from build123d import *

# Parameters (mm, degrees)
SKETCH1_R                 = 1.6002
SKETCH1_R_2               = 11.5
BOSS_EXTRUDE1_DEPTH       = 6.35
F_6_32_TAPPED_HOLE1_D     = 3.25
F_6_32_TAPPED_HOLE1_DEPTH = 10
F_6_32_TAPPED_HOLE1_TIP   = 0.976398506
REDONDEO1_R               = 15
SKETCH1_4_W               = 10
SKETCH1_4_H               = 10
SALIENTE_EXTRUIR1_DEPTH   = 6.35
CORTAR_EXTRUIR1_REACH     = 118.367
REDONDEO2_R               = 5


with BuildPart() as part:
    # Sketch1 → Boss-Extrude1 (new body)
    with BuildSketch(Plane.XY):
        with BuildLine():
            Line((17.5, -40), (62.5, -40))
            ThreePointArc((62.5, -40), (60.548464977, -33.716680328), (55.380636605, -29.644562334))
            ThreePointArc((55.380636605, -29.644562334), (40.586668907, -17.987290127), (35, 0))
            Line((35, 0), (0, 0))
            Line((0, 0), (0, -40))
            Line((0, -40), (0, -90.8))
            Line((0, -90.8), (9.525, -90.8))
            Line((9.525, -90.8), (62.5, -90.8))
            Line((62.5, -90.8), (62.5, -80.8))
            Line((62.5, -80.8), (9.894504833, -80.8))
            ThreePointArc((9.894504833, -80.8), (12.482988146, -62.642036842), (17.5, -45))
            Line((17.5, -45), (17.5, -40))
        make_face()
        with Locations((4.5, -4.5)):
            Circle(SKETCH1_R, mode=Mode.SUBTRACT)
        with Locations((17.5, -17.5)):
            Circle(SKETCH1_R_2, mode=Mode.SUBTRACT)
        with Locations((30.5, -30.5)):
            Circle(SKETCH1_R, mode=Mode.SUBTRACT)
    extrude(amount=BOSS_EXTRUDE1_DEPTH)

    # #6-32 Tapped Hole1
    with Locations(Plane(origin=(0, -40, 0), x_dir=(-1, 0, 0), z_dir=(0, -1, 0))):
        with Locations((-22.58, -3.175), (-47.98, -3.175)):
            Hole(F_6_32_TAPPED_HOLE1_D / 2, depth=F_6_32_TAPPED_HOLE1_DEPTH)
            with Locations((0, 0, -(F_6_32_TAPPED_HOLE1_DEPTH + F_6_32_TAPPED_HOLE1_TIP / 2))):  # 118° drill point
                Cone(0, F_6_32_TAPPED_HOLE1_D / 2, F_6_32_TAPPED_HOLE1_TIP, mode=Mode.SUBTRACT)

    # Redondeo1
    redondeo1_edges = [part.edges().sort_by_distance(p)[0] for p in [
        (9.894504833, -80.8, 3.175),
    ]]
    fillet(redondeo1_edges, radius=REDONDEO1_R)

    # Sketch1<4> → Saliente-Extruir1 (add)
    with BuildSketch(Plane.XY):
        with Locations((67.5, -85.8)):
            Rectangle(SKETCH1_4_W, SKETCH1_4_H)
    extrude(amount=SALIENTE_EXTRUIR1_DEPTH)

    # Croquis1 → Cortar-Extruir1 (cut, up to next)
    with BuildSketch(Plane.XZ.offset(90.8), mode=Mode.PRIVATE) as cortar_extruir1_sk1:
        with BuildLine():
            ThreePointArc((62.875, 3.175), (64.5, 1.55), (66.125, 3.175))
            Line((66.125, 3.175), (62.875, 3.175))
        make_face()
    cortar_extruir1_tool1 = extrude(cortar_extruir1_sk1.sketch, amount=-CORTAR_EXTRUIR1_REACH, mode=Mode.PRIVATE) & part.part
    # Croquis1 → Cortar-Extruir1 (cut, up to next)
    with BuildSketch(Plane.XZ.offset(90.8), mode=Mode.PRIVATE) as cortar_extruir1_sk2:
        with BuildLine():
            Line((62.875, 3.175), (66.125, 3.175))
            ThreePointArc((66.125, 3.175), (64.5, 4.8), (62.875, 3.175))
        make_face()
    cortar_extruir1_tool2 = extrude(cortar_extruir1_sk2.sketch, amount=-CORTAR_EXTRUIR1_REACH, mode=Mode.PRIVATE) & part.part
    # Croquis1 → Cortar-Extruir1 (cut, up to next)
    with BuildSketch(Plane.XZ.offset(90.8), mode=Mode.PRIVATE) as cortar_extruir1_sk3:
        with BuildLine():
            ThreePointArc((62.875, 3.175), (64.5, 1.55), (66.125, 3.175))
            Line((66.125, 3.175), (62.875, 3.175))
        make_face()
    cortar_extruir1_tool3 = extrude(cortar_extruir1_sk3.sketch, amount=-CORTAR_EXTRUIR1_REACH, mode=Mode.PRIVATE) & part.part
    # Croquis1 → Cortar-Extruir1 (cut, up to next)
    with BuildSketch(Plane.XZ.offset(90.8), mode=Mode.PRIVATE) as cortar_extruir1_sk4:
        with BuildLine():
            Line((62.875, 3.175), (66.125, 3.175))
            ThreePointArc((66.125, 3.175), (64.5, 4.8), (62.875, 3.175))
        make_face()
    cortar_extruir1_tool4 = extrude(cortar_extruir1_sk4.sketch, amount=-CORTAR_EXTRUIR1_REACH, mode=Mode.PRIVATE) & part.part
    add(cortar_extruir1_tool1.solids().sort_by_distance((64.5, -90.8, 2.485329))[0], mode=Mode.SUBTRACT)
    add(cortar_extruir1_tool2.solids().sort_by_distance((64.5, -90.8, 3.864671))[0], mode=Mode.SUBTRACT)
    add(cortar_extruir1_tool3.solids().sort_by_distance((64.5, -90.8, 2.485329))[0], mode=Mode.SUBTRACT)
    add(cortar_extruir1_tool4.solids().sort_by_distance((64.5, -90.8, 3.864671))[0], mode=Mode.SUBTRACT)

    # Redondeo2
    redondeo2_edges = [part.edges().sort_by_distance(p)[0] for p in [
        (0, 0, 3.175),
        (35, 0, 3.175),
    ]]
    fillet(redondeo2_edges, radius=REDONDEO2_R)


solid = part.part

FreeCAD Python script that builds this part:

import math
import FreeCAD as App
import Part
import Sketcher


def edges_at(feature, points):
    """Names of the edges that pass closest to the given points."""
    edges = feature.Shape.Edges
    near = lambda p: min(range(len(edges)), key=lambda i: edges[i].distToShape(Part.Vertex(*p))[0])
    return sorted({f"Edge{near(p) + 1}" for p in points})


def add_polygon(sketch, points):
    """Adds a closed chain of lines whose ends are joined by coincident constraints."""
    first, n = sketch.GeometryCount, len(points)
    for a, b in zip(points, points[1:] + points[:1]):
        sketch.addGeometry(Part.LineSegment(App.Vector(*a, 0), App.Vector(*b, 0)), False)
    for i in range(n):
        sketch.addConstraint(Sketcher.Constraint("Coincident", first + i, 2, first + (i + 1) % n, 1))

doc = App.newDocument("Part")
body = doc.addObject("PartDesign::Body", "Body")

# Sketch on XY plane
sketch1 = body.newObject("Sketcher::SketchObject", "Sketch")
sketch1.AttachmentSupport = (doc.getObject("XY_Plane"), [""])
sketch1.MapMode = "FlatFace"
sketch1.addGeometry([
    Part.LineSegment(App.Vector(17.5, -40, 0), App.Vector(62.5, -40, 0)),  # 0
    Part.ArcOfCircle(Part.Circle(App.Vector(51.4, -40, 0), App.Vector(0, 0, 1), 11.1), math.radians(0), math.radians(69)),  # 1
    Part.ArcOfCircle(Part.Circle(App.Vector(66.8, 0, 0), App.Vector(0, 0, 1), 31.8), math.radians(180), math.radians(249)),  # 2
    Part.LineSegment(App.Vector(35, 0, 0), App.Vector(0, 0, 0)),  # 3
    Part.LineSegment(App.Vector(0, 0, 0), App.Vector(0, -90.8, 0)),  # 4
    Part.LineSegment(App.Vector(0, -90.8, 0), App.Vector(62.5, -90.8, 0)),  # 5
    Part.LineSegment(App.Vector(62.5, -90.8, 0), App.Vector(62.5, -80.8, 0)),  # 6
    Part.LineSegment(App.Vector(62.5, -80.8, 0), App.Vector(9.9, -80.8, 0)),  # 7
    Part.ArcOfCircle(Part.Circle(App.Vector(145, -90.8, 0), App.Vector(0, 0, 1), 135.5), math.radians(160.24), math.radians(175.77)),  # 8
    Part.LineSegment(App.Vector(17.5, -45, 0), App.Vector(17.5, -40, 0)),  # 9
    Part.Circle(App.Vector(17.5, -17.5, 0), App.Vector(0, 0, 1), 11.5),  # 10
    Part.Circle(App.Vector(30.5, -30.5, 0), App.Vector(0, 0, 1), 1.6),  # 11
    Part.Circle(App.Vector(4.5, -4.5, 0), App.Vector(0, 0, 1), 1.6),  # 12
], False)
sketch1.addConstraint([
    Sketcher.Constraint("Coincident", 0, 2, 1, 1),
    Sketcher.Constraint("Tangent", 1, 2, 2, 2),
    Sketcher.Constraint("Coincident", 2, 1, 3, 1),
    Sketcher.Constraint("Coincident", 3, 2, 4, 1),
    Sketcher.Constraint("Coincident", 4, 2, 5, 1),
    Sketcher.Constraint("Coincident", 5, 2, 6, 1),
    Sketcher.Constraint("Coincident", 6, 2, 7, 1),
    Sketcher.Constraint("Coincident", 7, 2, 8, 2),
    Sketcher.Constraint("Coincident", 8, 1, 9, 1),
    Sketcher.Constraint("Coincident", 9, 2, 0, 1),
    Sketcher.Constraint("Horizontal", 0),
    Sketcher.Constraint("Horizontal", 3),
    Sketcher.Constraint("Vertical", 4),
    Sketcher.Constraint("Horizontal", 5),
    Sketcher.Constraint("Vertical", 6),
    Sketcher.Constraint("Horizontal", 7),
    Sketcher.Constraint("Vertical", 9),
    Sketcher.Constraint("Coincident", 3, 2, -1, 1),
    Sketcher.Constraint("Equal", 11, 12),
    Sketcher.Constraint("PointOnObject", 2, 3, -1),
    Sketcher.Constraint("Horizontal", 1, 3, 0, 2),
    Sketcher.Constraint("Horizontal", 8, 3, 4, 2),
    Sketcher.Constraint("Vertical", 0, 2, 5, 2),
    Sketcher.Constraint("Vertical", 10, 3, 8, 1),
    Sketcher.Constraint("Diameter", 10, 23.0),
    Sketcher.Constraint("DistanceX", 0, 1, 0, 2, 45.0),
    Sketcher.Constraint("DistanceX", 3, 2, 3, 1, 35.0),
    Sketcher.Constraint("DistanceY", 6, 1, 6, 2, 10.0),
    Sketcher.Constraint("DistanceY", 9, 1, 9, 2, 5.0),
    Sketcher.Constraint("Radius", 2, 31.75),
    Sketcher.Constraint("DistanceX", 5, 1, 5, 2, 62.5),
    Sketcher.Constraint("DistanceY", 4, 2, 4, 1, 90.8),
    Sketcher.Constraint("DistanceY", 1, 3, -1, 1, 40.0),
    Sketcher.Constraint("DistanceX", 10, 3, 11, 3, 13.0),
    Sketcher.Constraint("DistanceY", 11, 3, 10, 3, 13.0),
    Sketcher.Constraint("DistanceX", 12, 3, 10, 3, 13.0),
    Sketcher.Constraint("DistanceY", 10, 3, 12, 3, 13.0),
    Sketcher.Constraint("Diameter", 11, 3.2004),
    Sketcher.Constraint("DistanceY", 10, 3, -1, 1, 17.5),
    Sketcher.Constraint("Radius", 8, 135.50098),
])
pad1 = body.newObject("PartDesign::Pad", "Pad")
pad1.Profile = sketch1
pad1.Length = 6.35

# Sketch on XZ plane
sketch2 = body.newObject("Sketcher::SketchObject", "Sketch001")
sketch2.AttachmentSupport = (doc.getObject("XZ_Plane"), [""])
sketch2.MapMode = "FlatFace"
sketch2.AttachmentOffset = App.Placement(App.Vector(0, 0, 40), App.Rotation())
sketch2.addGeometry([
    Part.Circle(App.Vector(22.6, 3.2, 0), App.Vector(0, 0, 1), 1.6),
    Part.Circle(App.Vector(48, 3.2, 0), App.Vector(0, 0, 1), 1.6),
], False)
sketch2.addConstraint([
    Sketcher.Constraint("Equal", 0, 1),
    Sketcher.Constraint("Horizontal", 0, 3, 1, 3),
    Sketcher.Constraint("Diameter", 0, 3.25),
    Sketcher.Constraint("DistanceX", 0, 3, 1, 3, 25.4),
    Sketcher.Constraint("DistanceX", -1, 1, 0, 3, 22.58),
    Sketcher.Constraint("DistanceY", -1, 1, 0, 3, 3.175),
])
doc.recompute()
hole = body.newObject("PartDesign::Hole", "Hole")
hole.Profile = sketch2
hole.ThreadType = "None"
hole.Diameter = 3.25
hole.DepthType = "Dimension"
hole.Depth = 10
hole.DrillPoint = "Angled"
hole.DrillPointAngle = 118
doc.recompute()

fillet = body.newObject("PartDesign::Fillet", "Fillet")
fillet.Base = (hole, edges_at(hole, [(9.895, -80.8, 3.175)]))
fillet.Radius = 15

# Sketch on XY plane
sketch3 = body.newObject("Sketcher::SketchObject", "Sketch002")
sketch3.AttachmentSupport = (doc.getObject("XY_Plane"), [""])
sketch3.MapMode = "FlatFace"
add_polygon(sketch3, [(62, -81), (62, -91), (72, -91), (72, -81)])  # lines 0-3
sketch3.addConstraint([
    Sketcher.Constraint("Vertical", 0),
    Sketcher.Constraint("Horizontal", 1),
    Sketcher.Constraint("Vertical", 2),
    Sketcher.Constraint("Horizontal", 3),
    Sketcher.Constraint("Equal", 3, 0),
    Sketcher.Constraint("DistanceX", 1, 1, 1, 2, 10.0),
    Sketcher.Constraint("DistanceX", -1, 1, 0, 2, 62.5),
    Sketcher.Constraint("DistanceY", 0, 2, -1, 1, 90.8),
])
pad2 = body.newObject("PartDesign::Pad", "Pad001")
pad2.Profile = sketch3
pad2.Length = 6.35

# Sketch on XZ plane
sketch4 = body.newObject("Sketcher::SketchObject", "Sketch003")
sketch4.AttachmentSupport = (doc.getObject("XZ_Plane"), [""])
sketch4.MapMode = "FlatFace"
sketch4.AttachmentOffset = App.Placement(App.Vector(0, 0, 90.8), App.Rotation())
sketch4.addGeometry([
    Part.ArcOfCircle(Part.Circle(App.Vector(64.5, 3.2, 0), App.Vector(0, 0, 1), 1.6), math.radians(180), math.radians(360)),
    Part.LineSegment(App.Vector(66.1, 3.2, 0), App.Vector(62.9, 3.2, 0)),
], False)
sketch4.addConstraint([
    Sketcher.Constraint("Coincident", 0, 1, 1, 2),
    Sketcher.Constraint("Coincident", 1, 1, 0, 2),
    Sketcher.Constraint("Horizontal", 1),
    Sketcher.Constraint("Radius", 0, 1.625),
    Sketcher.Constraint("DistanceX", -1, 1, 0, 3, 64.5),
    Sketcher.Constraint("DistanceY", -1, 1, 0, 3, 3.175),
    Sketcher.Constraint("DistanceY", -1, 1, 0, 1, 3.175),
])
pocket1 = body.newObject("PartDesign::Pocket", "Pocket")
pocket1.Profile = sketch4
pocket1.Type = "UpToFirst"

# Sketch on XZ plane
sketch5 = body.newObject("Sketcher::SketchObject", "Sketch004")
sketch5.AttachmentSupport = (doc.getObject("XZ_Plane"), [""])
sketch5.MapMode = "FlatFace"
sketch5.AttachmentOffset = App.Placement(App.Vector(0, 0, 90.8), App.Rotation())
sketch5.addGeometry([
    Part.LineSegment(App.Vector(62.9, 3.2, 0), App.Vector(66.1, 3.2, 0)),
    Part.ArcOfCircle(Part.Circle(App.Vector(64.5, 3.2, 0), App.Vector(0, 0, 1), 1.6), math.radians(0), math.radians(180)),
], False)
sketch5.addConstraint([
    Sketcher.Constraint("Coincident", 0, 1, 1, 2),
    Sketcher.Constraint("Coincident", 1, 1, 0, 2),
    Sketcher.Constraint("Horizontal", 0),
    Sketcher.Constraint("Horizontal", 1, 3, 0, 1),
    Sketcher.Constraint("Radius", 1, 1.625),
    Sketcher.Constraint("DistanceX", -1, 1, 1, 3, 64.5),
    Sketcher.Constraint("DistanceY", -1, 1, 1, 3, 3.175),
])
pocket2 = body.newObject("PartDesign::Pocket", "Pocket001")
pocket2.Profile = sketch5
pocket2.Type = "UpToFirst"

# Sketch on XZ plane
sketch6 = body.newObject("Sketcher::SketchObject", "Sketch005")
sketch6.AttachmentSupport = (doc.getObject("XZ_Plane"), [""])
sketch6.MapMode = "FlatFace"
sketch6.AttachmentOffset = App.Placement(App.Vector(0, 0, 90.8), App.Rotation())
sketch6.addGeometry([
    Part.ArcOfCircle(Part.Circle(App.Vector(64.5, 3.2, 0), App.Vector(0, 0, 1), 1.6), math.radians(180), math.radians(360)),
    Part.LineSegment(App.Vector(66.1, 3.2, 0), App.Vector(62.9, 3.2, 0)),
], False)
sketch6.addConstraint([
    Sketcher.Constraint("Coincident", 0, 1, 1, 2),
    Sketcher.Constraint("Coincident", 1, 1, 0, 2),
    Sketcher.Constraint("Horizontal", 1),
    Sketcher.Constraint("Radius", 0, 1.625),
    Sketcher.Constraint("DistanceX", -1, 1, 0, 3, 64.5),
    Sketcher.Constraint("DistanceY", -1, 1, 0, 3, 3.175),
    Sketcher.Constraint("DistanceY", -1, 1, 0, 1, 3.175),
])
pocket3 = body.newObject("PartDesign::Pocket", "Pocket002")
pocket3.Profile = sketch6
pocket3.Length = 10

# Sketch on XZ plane
sketch7 = body.newObject("Sketcher::SketchObject", "Sketch006")
sketch7.AttachmentSupport = (doc.getObject("XZ_Plane"), [""])
sketch7.MapMode = "FlatFace"
sketch7.AttachmentOffset = App.Placement(App.Vector(0, 0, 90.8), App.Rotation())
sketch7.addGeometry([
    Part.LineSegment(App.Vector(62.9, 3.2, 0), App.Vector(66.1, 3.2, 0)),
    Part.ArcOfCircle(Part.Circle(App.Vector(64.5, 3.2, 0), App.Vector(0, 0, 1), 1.6), math.radians(0), math.radians(180)),
], False)
sketch7.addConstraint([
    Sketcher.Constraint("Coincident", 0, 1, 1, 2),
    Sketcher.Constraint("Coincident", 1, 1, 0, 2),
    Sketcher.Constraint("Horizontal", 0),
    Sketcher.Constraint("Horizontal", 1, 3, 0, 1),
    Sketcher.Constraint("Radius", 1, 1.625),
    Sketcher.Constraint("DistanceX", -1, 1, 1, 3, 64.5),
    Sketcher.Constraint("DistanceY", -1, 1, 1, 3, 3.175),
])
pocket4 = body.newObject("PartDesign::Pocket", "Pocket003")
pocket4.Profile = sketch7
pocket4.Length = 10
doc.recompute()

fillet2 = body.newObject("PartDesign::Fillet", "Fillet001")
fillet2.Base = (pocket4, edges_at(pocket4, [(0, 0, 3.175), (35, 0, 3.175)]))
fillet2.Radius = 5

doc.recompute()
